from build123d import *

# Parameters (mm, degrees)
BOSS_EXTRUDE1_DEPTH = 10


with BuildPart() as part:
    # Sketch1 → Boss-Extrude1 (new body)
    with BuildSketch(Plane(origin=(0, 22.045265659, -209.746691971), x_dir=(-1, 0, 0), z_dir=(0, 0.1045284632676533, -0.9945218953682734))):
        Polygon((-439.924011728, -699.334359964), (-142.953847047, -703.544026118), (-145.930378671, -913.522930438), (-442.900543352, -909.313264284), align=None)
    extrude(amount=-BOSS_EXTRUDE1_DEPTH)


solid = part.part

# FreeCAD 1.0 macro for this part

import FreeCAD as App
import Part
import Sketcher
from FreeCAD import Vector

doc = App.newDocument("Part")
body = doc.addObject("PartDesign::Body", "Body")

sketch1 = body.newObject("Sketcher::SketchObject", "Sketch")
sketch1.Placement = App.Placement(Vector(0, 22.045266, -209.746692), App.Rotation(Vector(-1, 0, 0), Vector(0, 0.994521895, 0.104528463), Vector(0, 0.104528463, -0.994521895), "ZXY"))
sketch1.addGeometry([
    Part.LineSegment(Vector(-143, -704, 0), Vector(-440, -699, 0)),
    Part.LineSegment(Vector(-440, -699, 0), Vector(-443, -909, 0)),
    Part.LineSegment(Vector(-443, -909, 0), Vector(-146, -914, 0)),
    Part.LineSegment(Vector(-146, -914, 0), Vector(-143, -704, 0)),
], False)
sketch1.addConstraint([
    Sketcher.Constraint("Coincident", 0, 2, 1, 1),
    Sketcher.Constraint("Coincident", 1, 2, 2, 1),
    Sketcher.Constraint("Coincident", 2, 2, 3, 1),
    Sketcher.Constraint("Coincident", 3, 2, 0, 1),
    Sketcher.Constraint("Perpendicular", 0, 1),
    Sketcher.Constraint("Perpendicular", 1, 2),
    Sketcher.Constraint("Perpendicular", 2, 3),
    Sketcher.Constraint("Distance", 0, 297.0),
    Sketcher.Constraint("Distance", 1, 210.0),
    Sketcher.Constraint("DistanceX", 0, 2, -1, 1, 439.924012),
    Sketcher.Constraint("DistanceY", 0, 2, -1, 1, 699.334359),
    Sketcher.Constraint("DistanceX", 2, 2, -1, 1, 145.930379),
])
pad1 = body.newObject("PartDesign::Pad", "Pad")
pad1.Profile = sketch1
pad1.Length = 10
pad1.Reversed = True

doc.recompute()
